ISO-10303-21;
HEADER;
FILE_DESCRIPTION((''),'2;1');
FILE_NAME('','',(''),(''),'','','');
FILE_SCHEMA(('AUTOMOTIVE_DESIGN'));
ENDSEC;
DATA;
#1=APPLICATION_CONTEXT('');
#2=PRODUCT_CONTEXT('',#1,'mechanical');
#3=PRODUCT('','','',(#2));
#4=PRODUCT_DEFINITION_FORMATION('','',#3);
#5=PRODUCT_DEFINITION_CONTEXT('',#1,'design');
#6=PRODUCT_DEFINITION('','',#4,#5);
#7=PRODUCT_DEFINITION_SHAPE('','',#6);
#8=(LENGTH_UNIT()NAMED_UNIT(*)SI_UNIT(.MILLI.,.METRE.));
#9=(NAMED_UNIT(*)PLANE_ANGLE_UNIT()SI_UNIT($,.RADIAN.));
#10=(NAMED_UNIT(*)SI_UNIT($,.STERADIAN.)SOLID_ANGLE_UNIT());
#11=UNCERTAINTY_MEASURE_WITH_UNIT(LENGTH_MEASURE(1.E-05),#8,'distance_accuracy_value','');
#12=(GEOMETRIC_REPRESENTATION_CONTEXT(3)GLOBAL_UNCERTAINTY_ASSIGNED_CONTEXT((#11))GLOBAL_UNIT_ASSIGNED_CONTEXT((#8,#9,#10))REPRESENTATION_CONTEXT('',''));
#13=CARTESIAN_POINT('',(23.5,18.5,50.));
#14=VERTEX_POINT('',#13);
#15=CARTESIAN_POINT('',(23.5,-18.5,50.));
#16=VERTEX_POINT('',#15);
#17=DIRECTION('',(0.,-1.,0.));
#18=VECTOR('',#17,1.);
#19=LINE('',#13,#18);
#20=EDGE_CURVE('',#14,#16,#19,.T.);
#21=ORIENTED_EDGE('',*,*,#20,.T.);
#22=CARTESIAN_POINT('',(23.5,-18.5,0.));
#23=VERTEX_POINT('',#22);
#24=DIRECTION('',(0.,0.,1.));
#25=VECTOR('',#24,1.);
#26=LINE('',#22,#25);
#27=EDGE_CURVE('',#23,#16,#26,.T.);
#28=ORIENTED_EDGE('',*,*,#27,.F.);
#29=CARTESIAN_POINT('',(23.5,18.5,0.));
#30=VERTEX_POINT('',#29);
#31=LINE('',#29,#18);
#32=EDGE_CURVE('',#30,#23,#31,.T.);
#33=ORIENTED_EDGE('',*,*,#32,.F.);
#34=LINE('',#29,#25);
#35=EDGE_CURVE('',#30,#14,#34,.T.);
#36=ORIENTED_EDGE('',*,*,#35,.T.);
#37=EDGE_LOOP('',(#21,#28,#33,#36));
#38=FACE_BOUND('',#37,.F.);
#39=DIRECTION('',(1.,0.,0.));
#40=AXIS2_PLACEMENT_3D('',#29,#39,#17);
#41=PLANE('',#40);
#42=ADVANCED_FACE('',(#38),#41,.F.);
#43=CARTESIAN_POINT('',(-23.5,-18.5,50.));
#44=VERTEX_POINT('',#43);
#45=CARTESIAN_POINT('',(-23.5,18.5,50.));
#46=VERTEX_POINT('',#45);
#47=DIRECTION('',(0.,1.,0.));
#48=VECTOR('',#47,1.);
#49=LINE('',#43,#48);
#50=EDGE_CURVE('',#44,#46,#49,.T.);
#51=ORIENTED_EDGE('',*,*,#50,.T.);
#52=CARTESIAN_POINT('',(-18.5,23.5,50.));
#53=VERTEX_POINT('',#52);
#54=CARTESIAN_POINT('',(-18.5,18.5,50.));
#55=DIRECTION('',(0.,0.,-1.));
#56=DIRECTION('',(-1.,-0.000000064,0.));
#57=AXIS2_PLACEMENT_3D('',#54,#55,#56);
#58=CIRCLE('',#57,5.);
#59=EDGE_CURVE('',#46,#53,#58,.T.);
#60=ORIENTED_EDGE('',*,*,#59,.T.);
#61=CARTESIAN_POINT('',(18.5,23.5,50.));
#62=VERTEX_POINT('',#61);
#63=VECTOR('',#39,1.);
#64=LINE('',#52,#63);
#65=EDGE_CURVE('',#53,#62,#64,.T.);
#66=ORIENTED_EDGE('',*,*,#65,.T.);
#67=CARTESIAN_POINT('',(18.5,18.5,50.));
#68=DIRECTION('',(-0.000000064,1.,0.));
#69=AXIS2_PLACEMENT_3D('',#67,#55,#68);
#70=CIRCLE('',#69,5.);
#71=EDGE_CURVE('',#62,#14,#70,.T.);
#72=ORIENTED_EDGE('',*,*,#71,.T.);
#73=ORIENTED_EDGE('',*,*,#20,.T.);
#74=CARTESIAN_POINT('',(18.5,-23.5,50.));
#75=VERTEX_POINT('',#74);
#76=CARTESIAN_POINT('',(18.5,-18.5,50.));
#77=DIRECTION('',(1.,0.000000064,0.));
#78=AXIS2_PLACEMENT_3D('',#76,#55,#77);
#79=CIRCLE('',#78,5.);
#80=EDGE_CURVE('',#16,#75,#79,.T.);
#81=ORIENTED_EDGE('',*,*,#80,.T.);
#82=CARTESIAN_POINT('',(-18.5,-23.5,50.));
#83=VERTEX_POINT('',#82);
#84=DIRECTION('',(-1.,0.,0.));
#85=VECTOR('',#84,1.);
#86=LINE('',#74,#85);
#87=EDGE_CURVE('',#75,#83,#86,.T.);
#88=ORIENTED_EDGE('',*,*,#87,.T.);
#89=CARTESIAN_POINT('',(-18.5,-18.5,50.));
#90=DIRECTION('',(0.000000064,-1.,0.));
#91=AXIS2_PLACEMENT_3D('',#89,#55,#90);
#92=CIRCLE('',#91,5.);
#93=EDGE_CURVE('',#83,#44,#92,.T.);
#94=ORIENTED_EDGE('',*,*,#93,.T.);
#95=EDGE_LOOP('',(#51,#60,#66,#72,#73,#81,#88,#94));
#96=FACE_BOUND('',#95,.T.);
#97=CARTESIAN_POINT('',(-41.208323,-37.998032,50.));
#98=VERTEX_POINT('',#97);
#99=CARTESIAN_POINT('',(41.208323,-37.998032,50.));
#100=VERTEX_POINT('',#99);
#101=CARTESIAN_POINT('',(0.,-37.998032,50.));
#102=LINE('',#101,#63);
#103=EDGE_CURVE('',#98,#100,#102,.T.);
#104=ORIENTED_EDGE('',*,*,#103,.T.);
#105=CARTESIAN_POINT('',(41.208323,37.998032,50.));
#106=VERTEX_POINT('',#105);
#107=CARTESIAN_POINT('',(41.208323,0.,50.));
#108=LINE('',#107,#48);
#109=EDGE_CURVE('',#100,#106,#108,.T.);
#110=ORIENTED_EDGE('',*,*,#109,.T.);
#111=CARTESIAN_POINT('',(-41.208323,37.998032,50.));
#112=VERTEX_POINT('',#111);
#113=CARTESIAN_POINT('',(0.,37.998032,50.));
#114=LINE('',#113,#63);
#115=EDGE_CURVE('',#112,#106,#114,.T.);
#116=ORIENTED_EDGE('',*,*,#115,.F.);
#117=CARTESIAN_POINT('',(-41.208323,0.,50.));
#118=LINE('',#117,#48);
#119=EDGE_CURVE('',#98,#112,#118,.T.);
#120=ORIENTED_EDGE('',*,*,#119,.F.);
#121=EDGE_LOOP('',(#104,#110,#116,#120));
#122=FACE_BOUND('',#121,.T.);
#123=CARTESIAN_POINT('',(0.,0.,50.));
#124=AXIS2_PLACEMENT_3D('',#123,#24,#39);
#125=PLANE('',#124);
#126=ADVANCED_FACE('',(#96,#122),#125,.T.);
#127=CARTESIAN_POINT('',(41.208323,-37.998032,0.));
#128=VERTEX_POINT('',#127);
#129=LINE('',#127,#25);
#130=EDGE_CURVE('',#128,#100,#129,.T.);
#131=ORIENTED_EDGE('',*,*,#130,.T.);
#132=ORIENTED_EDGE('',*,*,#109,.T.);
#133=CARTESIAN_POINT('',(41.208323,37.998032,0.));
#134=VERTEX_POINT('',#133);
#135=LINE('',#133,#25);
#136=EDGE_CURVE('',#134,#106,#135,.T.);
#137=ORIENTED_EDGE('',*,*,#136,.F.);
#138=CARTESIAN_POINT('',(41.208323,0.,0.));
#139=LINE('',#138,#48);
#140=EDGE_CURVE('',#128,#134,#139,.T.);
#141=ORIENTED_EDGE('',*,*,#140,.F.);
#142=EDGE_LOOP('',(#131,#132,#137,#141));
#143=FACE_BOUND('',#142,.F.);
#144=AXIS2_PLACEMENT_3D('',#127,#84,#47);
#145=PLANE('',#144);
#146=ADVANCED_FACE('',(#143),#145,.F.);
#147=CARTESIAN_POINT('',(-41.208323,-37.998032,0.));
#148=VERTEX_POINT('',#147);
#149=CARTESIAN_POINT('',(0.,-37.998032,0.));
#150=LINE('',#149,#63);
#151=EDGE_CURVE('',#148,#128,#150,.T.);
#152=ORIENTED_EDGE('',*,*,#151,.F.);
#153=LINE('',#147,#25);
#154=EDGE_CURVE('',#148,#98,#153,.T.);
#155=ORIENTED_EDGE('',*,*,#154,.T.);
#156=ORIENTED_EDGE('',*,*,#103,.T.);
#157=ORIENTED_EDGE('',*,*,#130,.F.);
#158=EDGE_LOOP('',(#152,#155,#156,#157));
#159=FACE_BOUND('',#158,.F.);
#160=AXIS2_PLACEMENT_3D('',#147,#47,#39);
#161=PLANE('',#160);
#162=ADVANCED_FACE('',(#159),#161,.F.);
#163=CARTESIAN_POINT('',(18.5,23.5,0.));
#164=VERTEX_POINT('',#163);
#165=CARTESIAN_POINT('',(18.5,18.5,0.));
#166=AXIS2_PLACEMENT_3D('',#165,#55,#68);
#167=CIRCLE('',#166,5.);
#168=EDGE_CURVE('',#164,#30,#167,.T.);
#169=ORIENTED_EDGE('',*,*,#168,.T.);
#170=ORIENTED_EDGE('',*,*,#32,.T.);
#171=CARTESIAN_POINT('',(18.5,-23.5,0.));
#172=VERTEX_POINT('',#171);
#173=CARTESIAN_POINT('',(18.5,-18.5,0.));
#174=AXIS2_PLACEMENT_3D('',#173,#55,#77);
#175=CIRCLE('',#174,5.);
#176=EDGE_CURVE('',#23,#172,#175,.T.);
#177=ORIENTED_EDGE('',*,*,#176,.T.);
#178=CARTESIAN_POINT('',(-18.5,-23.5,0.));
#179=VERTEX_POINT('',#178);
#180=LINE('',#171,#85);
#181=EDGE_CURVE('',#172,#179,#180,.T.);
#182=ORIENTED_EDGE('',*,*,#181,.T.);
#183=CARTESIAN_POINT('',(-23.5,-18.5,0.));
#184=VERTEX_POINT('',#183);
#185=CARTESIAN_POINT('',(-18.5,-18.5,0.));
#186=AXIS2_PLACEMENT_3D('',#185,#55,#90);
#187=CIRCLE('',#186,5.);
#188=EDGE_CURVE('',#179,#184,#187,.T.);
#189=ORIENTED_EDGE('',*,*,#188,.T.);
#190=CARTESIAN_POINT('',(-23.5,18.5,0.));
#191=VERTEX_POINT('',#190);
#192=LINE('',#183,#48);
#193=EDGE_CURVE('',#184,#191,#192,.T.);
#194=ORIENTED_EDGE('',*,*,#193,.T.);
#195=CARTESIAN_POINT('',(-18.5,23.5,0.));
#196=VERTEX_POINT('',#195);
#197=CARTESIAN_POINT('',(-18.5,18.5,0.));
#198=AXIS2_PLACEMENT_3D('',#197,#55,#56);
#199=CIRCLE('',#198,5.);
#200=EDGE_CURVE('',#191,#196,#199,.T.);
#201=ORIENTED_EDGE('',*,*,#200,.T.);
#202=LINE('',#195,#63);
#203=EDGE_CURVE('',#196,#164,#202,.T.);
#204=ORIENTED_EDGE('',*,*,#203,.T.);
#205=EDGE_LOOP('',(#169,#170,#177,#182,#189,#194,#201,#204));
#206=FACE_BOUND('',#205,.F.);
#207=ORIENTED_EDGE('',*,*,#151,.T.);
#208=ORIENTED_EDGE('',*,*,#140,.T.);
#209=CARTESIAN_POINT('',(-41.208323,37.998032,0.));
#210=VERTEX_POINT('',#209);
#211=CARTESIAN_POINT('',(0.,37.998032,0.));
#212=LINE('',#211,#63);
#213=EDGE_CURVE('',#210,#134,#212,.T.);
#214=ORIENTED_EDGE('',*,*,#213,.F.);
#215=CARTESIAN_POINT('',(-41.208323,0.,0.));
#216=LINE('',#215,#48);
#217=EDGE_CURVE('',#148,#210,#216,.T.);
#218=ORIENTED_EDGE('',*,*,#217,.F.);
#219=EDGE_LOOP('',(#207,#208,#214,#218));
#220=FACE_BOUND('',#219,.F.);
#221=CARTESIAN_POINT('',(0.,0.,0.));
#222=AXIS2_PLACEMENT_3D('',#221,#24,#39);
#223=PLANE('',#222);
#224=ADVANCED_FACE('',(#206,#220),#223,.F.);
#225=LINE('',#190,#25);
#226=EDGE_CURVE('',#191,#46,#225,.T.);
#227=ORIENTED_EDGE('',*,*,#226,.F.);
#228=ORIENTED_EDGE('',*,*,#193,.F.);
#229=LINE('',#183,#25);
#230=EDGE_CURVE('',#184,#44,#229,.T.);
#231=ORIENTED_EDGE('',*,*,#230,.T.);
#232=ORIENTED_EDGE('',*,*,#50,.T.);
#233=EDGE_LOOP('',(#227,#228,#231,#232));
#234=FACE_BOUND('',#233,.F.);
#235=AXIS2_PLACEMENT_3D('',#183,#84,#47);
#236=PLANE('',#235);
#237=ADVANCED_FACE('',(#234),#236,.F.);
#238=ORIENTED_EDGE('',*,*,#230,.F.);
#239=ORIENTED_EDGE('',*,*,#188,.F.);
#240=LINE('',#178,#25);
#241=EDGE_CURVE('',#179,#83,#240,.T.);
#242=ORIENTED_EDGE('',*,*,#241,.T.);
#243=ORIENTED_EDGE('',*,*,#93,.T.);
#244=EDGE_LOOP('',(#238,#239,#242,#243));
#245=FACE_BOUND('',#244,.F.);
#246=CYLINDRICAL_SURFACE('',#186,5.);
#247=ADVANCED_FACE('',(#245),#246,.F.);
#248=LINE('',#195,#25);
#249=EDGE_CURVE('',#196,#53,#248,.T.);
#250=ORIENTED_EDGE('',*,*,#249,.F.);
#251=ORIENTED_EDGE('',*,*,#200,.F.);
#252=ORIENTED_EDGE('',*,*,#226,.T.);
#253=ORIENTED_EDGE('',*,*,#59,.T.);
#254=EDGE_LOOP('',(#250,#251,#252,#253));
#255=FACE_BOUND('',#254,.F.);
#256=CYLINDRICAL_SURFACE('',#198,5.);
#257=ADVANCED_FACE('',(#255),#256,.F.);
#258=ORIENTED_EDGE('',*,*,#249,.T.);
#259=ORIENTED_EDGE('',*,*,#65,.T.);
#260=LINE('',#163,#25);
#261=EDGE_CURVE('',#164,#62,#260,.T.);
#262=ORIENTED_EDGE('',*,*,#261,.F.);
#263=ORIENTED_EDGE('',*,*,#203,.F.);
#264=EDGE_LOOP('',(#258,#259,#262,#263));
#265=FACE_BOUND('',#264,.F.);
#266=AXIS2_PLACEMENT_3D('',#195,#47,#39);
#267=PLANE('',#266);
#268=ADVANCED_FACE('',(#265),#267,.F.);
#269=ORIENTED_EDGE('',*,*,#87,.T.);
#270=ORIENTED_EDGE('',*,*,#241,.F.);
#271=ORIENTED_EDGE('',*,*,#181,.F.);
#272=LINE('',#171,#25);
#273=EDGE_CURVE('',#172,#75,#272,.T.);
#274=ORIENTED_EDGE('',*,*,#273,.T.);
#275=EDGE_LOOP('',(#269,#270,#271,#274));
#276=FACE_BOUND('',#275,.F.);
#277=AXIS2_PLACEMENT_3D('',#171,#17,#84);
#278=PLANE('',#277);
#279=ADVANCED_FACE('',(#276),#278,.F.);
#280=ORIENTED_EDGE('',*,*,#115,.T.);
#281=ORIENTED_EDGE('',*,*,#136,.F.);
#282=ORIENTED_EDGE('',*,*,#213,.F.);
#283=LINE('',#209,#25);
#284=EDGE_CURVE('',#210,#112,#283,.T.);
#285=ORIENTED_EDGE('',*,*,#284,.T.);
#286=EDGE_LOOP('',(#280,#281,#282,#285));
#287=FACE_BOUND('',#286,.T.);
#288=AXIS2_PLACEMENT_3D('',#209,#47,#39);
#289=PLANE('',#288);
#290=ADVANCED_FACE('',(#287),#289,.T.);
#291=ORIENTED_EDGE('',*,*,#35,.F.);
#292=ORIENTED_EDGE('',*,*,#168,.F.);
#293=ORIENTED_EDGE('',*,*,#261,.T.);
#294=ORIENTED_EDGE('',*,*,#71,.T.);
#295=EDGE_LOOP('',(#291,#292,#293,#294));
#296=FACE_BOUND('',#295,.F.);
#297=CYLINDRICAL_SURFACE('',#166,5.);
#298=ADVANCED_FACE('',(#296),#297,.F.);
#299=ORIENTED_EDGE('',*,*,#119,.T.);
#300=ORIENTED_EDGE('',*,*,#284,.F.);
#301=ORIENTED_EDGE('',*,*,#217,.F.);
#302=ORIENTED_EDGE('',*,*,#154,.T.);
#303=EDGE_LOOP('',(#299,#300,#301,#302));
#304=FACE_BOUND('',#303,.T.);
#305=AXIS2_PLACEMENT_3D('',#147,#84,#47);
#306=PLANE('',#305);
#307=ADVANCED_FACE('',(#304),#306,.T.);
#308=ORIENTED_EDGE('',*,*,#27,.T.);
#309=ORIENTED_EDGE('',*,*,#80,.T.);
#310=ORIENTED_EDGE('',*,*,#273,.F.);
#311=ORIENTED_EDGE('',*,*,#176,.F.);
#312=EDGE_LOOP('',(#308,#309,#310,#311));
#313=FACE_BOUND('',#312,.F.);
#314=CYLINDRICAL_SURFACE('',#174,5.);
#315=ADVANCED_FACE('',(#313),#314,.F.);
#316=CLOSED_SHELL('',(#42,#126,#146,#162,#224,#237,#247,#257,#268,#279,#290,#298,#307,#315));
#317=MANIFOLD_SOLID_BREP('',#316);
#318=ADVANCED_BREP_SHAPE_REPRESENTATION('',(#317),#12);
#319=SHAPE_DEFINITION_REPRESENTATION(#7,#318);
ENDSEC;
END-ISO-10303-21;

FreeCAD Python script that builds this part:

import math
import FreeCAD as App
import Part
import Sketcher
Q = App.Units.Quantity


def add_polygon(sketch, points):
    """Adds a closed chain of lines whose ends are joined by coincident constraints."""
    first, n = sketch.GeometryCount, len(points)
    for a, b in zip(points, points[1:] + points[:1]):
        sketch.addGeometry(Part.LineSegment(App.Vector(*a, 0), App.Vector(*b, 0)), False)
    for i in range(n):
        sketch.addConstraint(Sketcher.Constraint("Coincident", first + i, 2, first + (i + 1) % n, 1))

doc = App.newDocument("Part")
body = doc.addObject("PartDesign::Body", "Body")

sketch1 = doc.addObject("Sketcher::SketchObject", "Sketch")
body.addObject(sketch1)
sketch1.AttachmentSupport = (doc.XY_Plane, [""])
sketch1.MapMode = "FlatFace"
add_polygon(sketch1, [(-41.2, 38), (-41.2, -38), (41.2, -38), (41.2, 38)])
sketch1.addGeometry(Part.LineSegment(App.Vector(23.5, 18.5, 0), App.Vector(23.5, -18.5, 0)), False)
sketch1.addGeometry(Part.ArcOfCircle(Part.Circle(App.Vector(18.5, -18.5, 0), App.Vector(0, 0, 1), 5), math.radians(-90), math.radians(0)), False)
sketch1.addGeometry(Part.LineSegment(App.Vector(18.5, -23.5, 0), App.Vector(-18.5, -23.5, 0)), False)
sketch1.addGeometry(Part.ArcOfCircle(Part.Circle(App.Vector(-18.5, -18.5, 0), App.Vector(0, 0, 1), 5), math.radians(180), math.radians(270)), False)
sketch1.addGeometry(Part.LineSegment(App.Vector(-23.5, -18.5, 0), App.Vector(-23.5, 18.5, 0)), False)
sketch1.addGeometry(Part.ArcOfCircle(Part.Circle(App.Vector(-18.5, 18.5, 0), App.Vector(0, 0, 1), 5), math.radians(90), math.radians(180)), False)
sketch1.addGeometry(Part.LineSegment(App.Vector(-18.5, 23.5, 0), App.Vector(18.5, 23.5, 0)), False)
sketch1.addGeometry(Part.ArcOfCircle(Part.Circle(App.Vector(18.5, 18.5, 0), App.Vector(0, 0, 1), 5), math.radians(0), math.radians(90)), False)
sketch1.addConstraint([
    Sketcher.Constraint("Tangent", 4, 2, 5, 2),
    Sketcher.Constraint("Tangent", 5, 1, 6, 1),
    Sketcher.Constraint("Tangent", 6, 2, 7, 2),
    Sketcher.Constraint("Tangent", 7, 1, 8, 1),
    Sketcher.Constraint("Tangent", 8, 2, 9, 2),
    Sketcher.Constraint("Tangent", 9, 1, 10, 1),
    Sketcher.Constraint("Tangent", 10, 2, 11, 2),
    Sketcher.Constraint("Tangent", 11, 1, 4, 1),
    Sketcher.Constraint("Vertical", 0),
    Sketcher.Constraint("Horizontal", 1),
    Sketcher.Constraint("Vertical", 2),
    Sketcher.Constraint("Horizontal", 3),
    Sketcher.Constraint("Vertical", 4),
    Sketcher.Constraint("Horizontal", 6),
    Sketcher.Constraint("Vertical", 8),
    Sketcher.Constraint("Horizontal", 10),
    Sketcher.Constraint("Equal", 5, 7),
    Sketcher.Constraint("Equal", 7, 9),
    Sketcher.Constraint("Equal", 9, 11),
    Sketcher.Constraint("Symmetric", 5, 3, 9, 3, -1, 1),
    Sketcher.Constraint("Symmetric", 0, 2, 2, 2, -1, 1),
    Sketcher.Constraint("Equal", 10, 4),
    Sketcher.Constraint("Radius", 5, Q("5 mm")),
    Sketcher.Constraint("DistanceX", 6, 2, 6, 1, Q("37 mm")),
    Sketcher.Constraint("DistanceX", 1, 1, 1, 2, Q("82.416646 mm")),
    Sketcher.Constraint("DistanceY", 0, 2, 0, 1, Q("75.996064 mm")),
])
pad1 = doc.addObject("PartDesign::Pad", "Pad")
body.addObject(pad1)
pad1.Profile = sketch1
pad1.Length = 50

doc.recompute()
